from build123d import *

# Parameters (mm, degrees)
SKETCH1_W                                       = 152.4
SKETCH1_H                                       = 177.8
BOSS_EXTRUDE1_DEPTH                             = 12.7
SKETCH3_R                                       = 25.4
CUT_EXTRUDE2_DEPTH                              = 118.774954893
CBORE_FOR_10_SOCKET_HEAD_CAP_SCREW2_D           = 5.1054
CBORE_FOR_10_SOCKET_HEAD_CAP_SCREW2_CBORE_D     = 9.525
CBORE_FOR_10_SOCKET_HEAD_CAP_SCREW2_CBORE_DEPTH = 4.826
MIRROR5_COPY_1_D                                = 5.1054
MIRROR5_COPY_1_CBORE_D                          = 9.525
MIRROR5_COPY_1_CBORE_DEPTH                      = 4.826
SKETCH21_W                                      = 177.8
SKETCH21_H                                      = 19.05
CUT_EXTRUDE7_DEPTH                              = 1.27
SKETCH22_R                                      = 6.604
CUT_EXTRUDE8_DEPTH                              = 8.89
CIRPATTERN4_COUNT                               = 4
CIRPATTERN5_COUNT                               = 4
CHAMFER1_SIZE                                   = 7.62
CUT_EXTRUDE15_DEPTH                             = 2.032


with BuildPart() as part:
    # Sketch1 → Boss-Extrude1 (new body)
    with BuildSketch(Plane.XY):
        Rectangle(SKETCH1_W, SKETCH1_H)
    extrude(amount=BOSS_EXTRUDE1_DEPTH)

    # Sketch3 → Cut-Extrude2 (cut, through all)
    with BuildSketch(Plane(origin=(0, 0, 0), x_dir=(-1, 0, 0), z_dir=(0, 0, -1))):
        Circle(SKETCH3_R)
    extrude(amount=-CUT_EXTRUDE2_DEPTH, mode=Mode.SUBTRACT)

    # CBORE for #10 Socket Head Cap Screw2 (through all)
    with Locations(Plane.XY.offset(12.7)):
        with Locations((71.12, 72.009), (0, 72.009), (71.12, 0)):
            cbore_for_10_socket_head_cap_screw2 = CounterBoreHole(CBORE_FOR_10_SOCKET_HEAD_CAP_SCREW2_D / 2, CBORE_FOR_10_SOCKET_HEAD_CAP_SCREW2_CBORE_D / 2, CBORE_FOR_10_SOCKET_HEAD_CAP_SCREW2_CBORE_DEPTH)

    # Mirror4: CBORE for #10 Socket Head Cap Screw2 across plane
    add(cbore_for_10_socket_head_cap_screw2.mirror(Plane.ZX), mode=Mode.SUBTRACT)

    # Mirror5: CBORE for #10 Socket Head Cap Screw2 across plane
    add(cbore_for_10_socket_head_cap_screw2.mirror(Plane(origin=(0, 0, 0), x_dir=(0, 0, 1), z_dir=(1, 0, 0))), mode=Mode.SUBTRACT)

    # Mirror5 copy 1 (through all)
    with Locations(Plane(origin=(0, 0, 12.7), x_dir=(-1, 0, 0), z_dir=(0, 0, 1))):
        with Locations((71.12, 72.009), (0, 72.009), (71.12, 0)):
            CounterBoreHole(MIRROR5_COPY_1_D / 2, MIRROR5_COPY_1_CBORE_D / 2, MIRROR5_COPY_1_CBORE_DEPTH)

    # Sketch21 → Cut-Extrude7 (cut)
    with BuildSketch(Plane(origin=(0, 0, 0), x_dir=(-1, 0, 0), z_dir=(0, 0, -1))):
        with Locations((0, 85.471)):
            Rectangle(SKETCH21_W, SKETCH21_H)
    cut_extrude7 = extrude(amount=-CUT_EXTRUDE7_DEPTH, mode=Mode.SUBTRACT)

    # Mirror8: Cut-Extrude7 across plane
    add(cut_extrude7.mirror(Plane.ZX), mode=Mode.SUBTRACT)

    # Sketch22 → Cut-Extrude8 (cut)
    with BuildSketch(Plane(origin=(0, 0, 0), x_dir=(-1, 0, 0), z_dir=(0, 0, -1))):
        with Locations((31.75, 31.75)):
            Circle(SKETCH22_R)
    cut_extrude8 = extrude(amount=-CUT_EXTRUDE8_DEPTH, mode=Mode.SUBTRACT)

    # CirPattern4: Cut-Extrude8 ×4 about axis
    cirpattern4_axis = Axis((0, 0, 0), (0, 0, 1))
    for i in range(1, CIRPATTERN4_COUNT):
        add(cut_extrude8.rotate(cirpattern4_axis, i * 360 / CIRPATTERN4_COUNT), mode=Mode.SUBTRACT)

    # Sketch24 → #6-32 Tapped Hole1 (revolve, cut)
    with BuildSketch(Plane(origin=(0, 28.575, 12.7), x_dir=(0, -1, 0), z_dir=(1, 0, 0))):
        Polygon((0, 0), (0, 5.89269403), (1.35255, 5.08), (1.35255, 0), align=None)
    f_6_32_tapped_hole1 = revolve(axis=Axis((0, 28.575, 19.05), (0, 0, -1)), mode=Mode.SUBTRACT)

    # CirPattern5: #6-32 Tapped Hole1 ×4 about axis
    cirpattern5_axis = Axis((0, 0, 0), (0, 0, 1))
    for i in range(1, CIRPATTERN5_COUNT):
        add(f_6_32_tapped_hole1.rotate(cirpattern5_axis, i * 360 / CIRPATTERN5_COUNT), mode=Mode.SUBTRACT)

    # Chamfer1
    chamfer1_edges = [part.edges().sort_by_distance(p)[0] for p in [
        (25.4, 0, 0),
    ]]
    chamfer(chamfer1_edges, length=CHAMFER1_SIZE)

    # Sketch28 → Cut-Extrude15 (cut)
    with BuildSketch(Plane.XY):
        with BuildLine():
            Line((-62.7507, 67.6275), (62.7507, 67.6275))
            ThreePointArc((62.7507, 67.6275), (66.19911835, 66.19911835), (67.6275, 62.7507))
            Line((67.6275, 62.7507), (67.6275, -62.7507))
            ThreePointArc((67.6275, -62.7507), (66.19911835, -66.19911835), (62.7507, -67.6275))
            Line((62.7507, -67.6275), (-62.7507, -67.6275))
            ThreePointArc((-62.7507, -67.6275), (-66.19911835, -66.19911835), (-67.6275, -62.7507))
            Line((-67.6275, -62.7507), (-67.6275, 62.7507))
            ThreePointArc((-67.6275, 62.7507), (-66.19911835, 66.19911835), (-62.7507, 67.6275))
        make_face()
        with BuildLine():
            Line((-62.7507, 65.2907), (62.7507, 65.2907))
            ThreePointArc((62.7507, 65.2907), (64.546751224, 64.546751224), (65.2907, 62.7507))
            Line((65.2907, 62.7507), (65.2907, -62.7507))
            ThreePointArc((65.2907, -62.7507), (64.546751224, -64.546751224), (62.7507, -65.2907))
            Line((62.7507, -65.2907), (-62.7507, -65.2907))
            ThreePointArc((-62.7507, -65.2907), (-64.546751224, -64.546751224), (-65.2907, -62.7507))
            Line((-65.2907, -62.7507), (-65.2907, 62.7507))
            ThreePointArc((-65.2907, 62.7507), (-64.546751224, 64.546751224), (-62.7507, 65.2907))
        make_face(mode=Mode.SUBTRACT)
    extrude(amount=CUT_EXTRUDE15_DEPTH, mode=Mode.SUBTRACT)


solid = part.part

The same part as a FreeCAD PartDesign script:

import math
import FreeCAD as App
import Part
import Sketcher
from FreeCAD import Vector
Q = App.Units.Quantity


def edges_at(feature, points):
    """Names of the edges that pass closest to the given points."""
    edges = feature.Shape.Edges
    near = lambda p: min(range(len(edges)), key=lambda i: edges[i].distToShape(Part.Vertex(*p))[0])
    return sorted({f"Edge{near(p) + 1}" for p in points})

doc = App.newDocument("Part")
body = doc.addObject("PartDesign::Body", "Body")

# Sketch on XY plane
sketch1 = doc.addObject("Sketcher::SketchObject", "Sketch")
body.addObject(sketch1)
sketch1.AttachmentSupport = (doc.XY_Plane, [""])
sketch1.MapMode = "FlatFace"
sketch1.addGeometry([
    Part.LineSegment(Vector(-76, 89, 0), Vector(-76, -89, 0)),
    Part.LineSegment(Vector(-76, -89, 0), Vector(76, -89, 0)),
    Part.LineSegment(Vector(76, -89, 0), Vector(76, 89, 0)),
    Part.LineSegment(Vector(76, 89, 0), Vector(-76, 89, 0)),
], False)
sketch1.addConstraint([
    Sketcher.Constraint("Coincident", 0, 2, 1, 1),
    Sketcher.Constraint("Coincident", 1, 2, 2, 1),
    Sketcher.Constraint("Coincident", 2, 2, 3, 1),
    Sketcher.Constraint("Coincident", 3, 2, 0, 1),
    Sketcher.Constraint("Vertical", 0),
    Sketcher.Constraint("Horizontal", 1),
    Sketcher.Constraint("Vertical", 2),
    Sketcher.Constraint("Horizontal", 3),
    Sketcher.Constraint("Symmetric", 0, 2, 2, 2, -1, 1),
    Sketcher.Constraint("DistanceX", 1, 1, 1, 2, Q("6 in")),
    Sketcher.Constraint("DistanceY", 0, 2, 0, 1, Q("7 in")),
])
pad1 = doc.addObject("PartDesign::Pad", "Pad")
body.addObject(pad1)
pad1.Profile = sketch1
pad1.Length = Q("0.5 in")

# Sketch on XY plane
sketch2 = doc.addObject("Sketcher::SketchObject", "Sketch001")
body.addObject(sketch2)
sketch2.AttachmentSupport = (doc.XY_Plane, [""])
sketch2.MapMode = "FlatFace"
sketch2.addGeometry(Part.Circle(Vector(0, 0, 0), Vector(0, 0, 1), 25), False)
sketch2.addConstraint([
    Sketcher.Constraint("Coincident", 0, 3, -1, 1),
    Sketcher.Constraint("Diameter", 0, Q("2 in")),
])
pocket1 = doc.addObject("PartDesign::Pocket", "Pocket")
body.addObject(pocket1)
pocket1.Profile = sketch2
pocket1.Type = "ThroughAll"
pocket1.Reversed = True

# Sketch on XY plane
sketch3 = doc.addObject("Sketcher::SketchObject", "Sketch002")
body.addObject(sketch3)
sketch3.AttachmentSupport = (doc.XY_Plane, [""])
sketch3.MapMode = "FlatFace"
sketch3.AttachmentOffset = App.Placement(Vector(0, 0, 0.5 * 25.4), App.Rotation())
sketch3.addGeometry([
    Part.Circle(Vector(71.1, 72, 0), Vector(0, 0, 1), 2.6),
    Part.Circle(Vector(0, 72, 0), Vector(0, 0, 1), 2.6),
    Part.Circle(Vector(71.1, 0, 0), Vector(0, 0, 1), 2.6),
], False)
sketch3.addConstraint([
    Sketcher.Constraint("Equal", 0, 1),
    Sketcher.Constraint("Equal", 1, 2),
    Sketcher.Constraint("PointOnObject", 1, 3, -2),
    Sketcher.Constraint("PointOnObject", 2, 3, -1),
    Sketcher.Constraint("Horizontal", 0, 3, 1, 3),
    Sketcher.Constraint("Vertical", 0, 3, 2, 3),
    Sketcher.Constraint("Diameter", 0, Q("0.201 in")),
    Sketcher.Constraint("DistanceX", -1, 1, 0, 3, Q("2.8 in")),
    Sketcher.Constraint("DistanceY", -1, 1, 0, 3, Q("2.835 in")),
])
doc.recompute()
hole = doc.addObject("PartDesign::Hole", "Hole")
body.addObject(hole)
hole.Profile = sketch3
hole.ThreadType = "None"
hole.Diameter = Q("0.201 in")
hole.DepthType = "ThroughAll"
hole.HoleCutType = "Counterbore"
hole.HoleCutDiameter = Q("0.375 in")
hole.HoleCutDepth = Q("0.19 in")
doc.recompute()

mirrored = doc.addObject("PartDesign::Mirrored", "Mirrored")
body.addObject(mirrored)
mirrored.Originals = [hole]
mirrored.MirrorPlane = (doc.XZ_Plane, [""])
body.Tip = mirrored
doc.recompute()

mirrored2 = doc.addObject("PartDesign::Mirrored", "Mirrored001")
body.addObject(mirrored2)
mirrored2.Originals = [hole]
mirrored2.MirrorPlane = (doc.YZ_Plane, [""])
body.Tip = mirrored2

# Sketch on XY plane
sketch4 = doc.addObject("Sketcher::SketchObject", "Sketch003")
body.addObject(sketch4)
sketch4.AttachmentSupport = (doc.XY_Plane, [""])
sketch4.MapMode = "FlatFace"
sketch4.AttachmentOffset = App.Placement(Vector(0, 0, 0.5 * 25.4), App.Rotation())
sketch4.addGeometry([
    Part.Circle(Vector(-71.1, -72, 0), Vector(0, 0, 1), 2.6),
    Part.Circle(Vector(0, -72, 0), Vector(0, 0, 1), 2.6),
    Part.Circle(Vector(-71.1, 0, 0), Vector(0, 0, 1), 2.6),
], False)
sketch4.addConstraint([
    Sketcher.Constraint("Equal", 0, 1),
    Sketcher.Constraint("Equal", 1, 2),
    Sketcher.Constraint("PointOnObject", 1, 3, -2),
    Sketcher.Constraint("PointOnObject", 2, 3, -1),
    Sketcher.Constraint("Horizontal", 0, 3, 1, 3),
    Sketcher.Constraint("Vertical", 0, 3, 2, 3),
    Sketcher.Constraint("Diameter", 0, Q("0.201 in")),
    Sketcher.Constraint("DistanceX", 0, 3, -1, 1, Q("2.8 in")),
    Sketcher.Constraint("DistanceY", 0, 3, -1, 1, Q("2.835 in")),
])
doc.recompute()
hole2 = doc.addObject("PartDesign::Hole", "Hole001")
body.addObject(hole2)
hole2.Profile = sketch4
hole2.ThreadType = "None"
hole2.Diameter = Q("0.201 in")
hole2.DepthType = "ThroughAll"
hole2.HoleCutType = "Counterbore"
hole2.HoleCutDiameter = Q("0.375 in")
hole2.HoleCutDepth = Q("0.19 in")

# Sketch on XY plane
sketch5 = doc.addObject("Sketcher::SketchObject", "Sketch004")
body.addObject(sketch5)
sketch5.AttachmentSupport = (doc.XY_Plane, [""])
sketch5.MapMode = "FlatFace"
sketch5.addGeometry([
    Part.LineSegment(Vector(89, 95, 0), Vector(89, 76, 0)),
    Part.LineSegment(Vector(89, 76, 0), Vector(-89, 76, 0)),
    Part.LineSegment(Vector(-89, 76, 0), Vector(-89, 95, 0)),
    Part.LineSegment(Vector(-89, 95, 0), Vector(89, 95, 0)),
], False)
sketch5.addConstraint([
    Sketcher.Constraint("Coincident", 0, 2, 1, 1),
    Sketcher.Constraint("Coincident", 1, 2, 2, 1),
    Sketcher.Constraint("Coincident", 2, 2, 3, 1),
    Sketcher.Constraint("Coincident", 3, 2, 0, 1),
    Sketcher.Constraint("Vertical", 0),
    Sketcher.Constraint("Horizontal", 1),
    Sketcher.Constraint("Vertical", 2),
    Sketcher.Constraint("Horizontal", 3),
    Sketcher.Constraint("DistanceX", 1, 2, 1, 1, Q("7 in")),
    Sketcher.Constraint("DistanceY", 0, 2, 0, 1, Q("0.75 in")),
    Sketcher.Constraint("DistanceX", -1, 1, 0, 2, Q("3.5 in")),
    Sketcher.Constraint("DistanceY", -1, 1, 0, 2, Q("2.99 in")),
])
pocket2 = doc.addObject("PartDesign::Pocket", "Pocket001")
body.addObject(pocket2)
pocket2.Profile = sketch5
pocket2.Length = Q("0.05 in")
pocket2.Reversed = True
doc.recompute()

mirrored3 = doc.addObject("PartDesign::Mirrored", "Mirrored002")
body.addObject(mirrored3)
mirrored3.Originals = [pocket2]
mirrored3.MirrorPlane = (doc.XZ_Plane, [""])
body.Tip = mirrored3

# Sketch on XY plane
sketch6 = doc.addObject("Sketcher::SketchObject", "Sketch005")
body.addObject(sketch6)
sketch6.AttachmentSupport = (doc.XY_Plane, [""])
sketch6.MapMode = "FlatFace"
sketch6.addGeometry(Part.Circle(Vector(-32, 32, 0), Vector(0, 0, 1), 7), False)
sketch6.addConstraint([
    Sketcher.Constraint("Diameter", 0, Q("0.52 in")),
    Sketcher.Constraint("DistanceX", 0, 3, -1, 1, Q("1.25 in")),
    Sketcher.Constraint("DistanceY", -1, 1, 0, 3, Q("1.25 in")),
])
pocket3 = doc.addObject("PartDesign::Pocket", "Pocket002")
body.addObject(pocket3)
pocket3.Profile = sketch6
pocket3.Length = Q("0.35 in")
pocket3.Reversed = True
doc.recompute()

polarpattern = doc.addObject("PartDesign::PolarPattern", "PolarPattern")
body.addObject(polarpattern)
polarpattern.Originals = [pocket3]
polarpattern.Axis = (doc.Z_Axis, [""])
polarpattern.Angle = 360
polarpattern.Occurrences = 4
body.Tip = polarpattern

# Sketch on YZ plane
sketch7 = doc.addObject("Sketcher::SketchObject", "Sketch006")
body.addObject(sketch7)
sketch7.AttachmentSupport = (doc.YZ_Plane, [""])
sketch7.MapMode = "FlatFace"
sketch7.addGeometry([
    Part.LineSegment(Vector(28.6, 6.8, 0), Vector(28.6, 12.7, 0)),
    Part.LineSegment(Vector(28.6, 12.7, 0), Vector(27.2, 12.7, 0)),
    Part.LineSegment(Vector(27.2, 12.7, 0), Vector(27.2, 7.6, 0)),
    Part.LineSegment(Vector(27.2, 7.6, 0), Vector(28.6, 6.8, 0)),
], False)
sketch7.addGeometry(Part.LineSegment(Vector(28.6, 12.7, 0), Vector(28.6, 6.8, 0)), True)  # axis
sketch7.addConstraint([
    Sketcher.Constraint("Coincident", 0, 2, 1, 1),
    Sketcher.Constraint("Coincident", 1, 2, 2, 1),
    Sketcher.Constraint("Coincident", 2, 2, 3, 1),
    Sketcher.Constraint("Coincident", 3, 2, 0, 1),
    Sketcher.Constraint("Vertical", 0),
    Sketcher.Constraint("Horizontal", 1),
    Sketcher.Constraint("Vertical", 2),
    Sketcher.Constraint("Vertical", 4),
    Sketcher.Constraint("Coincident", 4, 1, 0, 2),
    Sketcher.Constraint("Equal", 0, 4),
    Sketcher.Constraint("DistanceY", 2, 2, 2, 1, Q("0.2 in")),
    Sketcher.Constraint("Angle", 3, Q("-31 deg")),
    Sketcher.Constraint("DistanceY", -1, 1, 0, 2, Q("0.5 in")),
    Sketcher.Constraint("DistanceX", -1, 1, 0, 2, Q("1.125 in")),
    Sketcher.Constraint("DistanceX", 1, 2, 1, 1, 1.35255),
])
groove = doc.addObject("PartDesign::Groove", "Groove")
body.addObject(groove)
groove.Profile = sketch7
groove.ReferenceAxis = (sketch7, ["Axis0"])
groove.Angle = 360
doc.recompute()

polarpattern2 = doc.addObject("PartDesign::PolarPattern", "PolarPattern001")
body.addObject(polarpattern2)
polarpattern2.Originals = [groove]
polarpattern2.Axis = (doc.Z_Axis, [""])
polarpattern2.Angle = 360
polarpattern2.Occurrences = 4
body.Tip = polarpattern2
doc.recompute()

chamfer = doc.addObject("PartDesign::Chamfer", "Chamfer")
body.addObject(chamfer)
chamfer.Base = (polarpattern2, edges_at(polarpattern2, [(25.4, 0, 0)]))
chamfer.Size = Q("0.3 in")

# Sketch on XY plane
sketch8 = doc.addObject("Sketcher::SketchObject", "Sketch007")
body.addObject(sketch8)
sketch8.AttachmentSupport = (doc.XY_Plane, [""])
sketch8.MapMode = "FlatFace"
sketch8.addGeometry([
    Part.LineSegment(Vector(62.8, 67.6, 0), Vector(-62.8, 67.6, 0)),  # 0
    Part.ArcOfCircle(Part.Circle(Vector(-62.8, 62.8, 0), Vector(0, 0, 1), 4.9), math.radians(90), math.radians(180)),  # 1
    Part.LineSegment(Vector(-67.6, 62.8, 0), Vector(-67.6, -62.8, 0)),  # 2
    Part.ArcOfCircle(Part.Circle(Vector(-62.8, -62.8, 0), Vector(0, 0, 1), 4.9), math.radians(-180), math.radians(-90)),  # 3
    Part.LineSegment(Vector(-62.8, -67.6, 0), Vector(62.8, -67.6, 0)),  # 4
    Part.ArcOfCircle(Part.Circle(Vector(62.8, -62.8, 0), Vector(0, 0, 1), 4.9), math.radians(-90), math.radians(0)),  # 5
    Part.LineSegment(Vector(67.6, -62.8, 0), Vector(67.6, 62.8, 0)),  # 6
    Part.ArcOfCircle(Part.Circle(Vector(62.8, 62.8, 0), Vector(0, 0, 1), 4.9), math.radians(0), math.radians(90)),  # 7
    Part.LineSegment(Vector(-62.8, 65.3, 0), Vector(62.8, 65.3, 0)),  # 8
    Part.ArcOfCircle(Part.Circle(Vector(62.8, 62.8, 0), Vector(0, 0, 1), 2.5), math.radians(0), math.radians(90)),  # 9
    Part.LineSegment(Vector(65.3, 62.8, 0), Vector(65.3, -62.8, 0)),  # 10
    Part.ArcOfCircle(Part.Circle(Vector(62.8, -62.8, 0), Vector(0, 0, 1), 2.5), math.radians(-90), math.radians(0)),  # 11
    Part.LineSegment(Vector(62.8, -65.3, 0), Vector(-62.8, -65.3, 0)),  # 12
    Part.ArcOfCircle(Part.Circle(Vector(-62.8, -62.8, 0), Vector(0, 0, 1), 2.5), math.radians(-180), math.radians(-90)),  # 13
    Part.LineSegment(Vector(-65.3, -62.8, 0), Vector(-65.3, 62.8, 0)),  # 14
    Part.ArcOfCircle(Part.Circle(Vector(-62.8, 62.8, 0), Vector(0, 0, 1), 2.5), math.radians(90), math.radians(180)),  # 15
], False)
sketch8.addConstraint([
    Sketcher.Constraint("Tangent", 0, 2, 1, 1),
    Sketcher.Constraint("Tangent", 1, 2, 2, 1),
    Sketcher.Constraint("Tangent", 2, 2, 3, 1),
    Sketcher.Constraint("Tangent", 3, 2, 4, 1),
    Sketcher.Constraint("Tangent", 4, 2, 5, 1),
    Sketcher.Constraint("Tangent", 5, 2, 6, 1),
    Sketcher.Constraint("Tangent", 6, 2, 7, 1),
    Sketcher.Constraint("Tangent", 7, 2, 0, 1),
    Sketcher.Constraint("Tangent", 8, 2, 9, 2),
    Sketcher.Constraint("Tangent", 9, 1, 10, 1),
    Sketcher.Constraint("Tangent", 10, 2, 11, 2),
    Sketcher.Constraint("Tangent", 11, 1, 12, 1),
    Sketcher.Constraint("Tangent", 12, 2, 13, 2),
    Sketcher.Constraint("Tangent", 13, 1, 14, 1),
    Sketcher.Constraint("Tangent", 14, 2, 15, 2),
    Sketcher.Constraint("Tangent", 15, 1, 8, 1),
    Sketcher.Constraint("Horizontal", 0),
    Sketcher.Constraint("Vertical", 2),
    Sketcher.Constraint("Horizontal", 4),
    Sketcher.Constraint("Vertical", 6),
    Sketcher.Constraint("Horizontal", 8),
    Sketcher.Constraint("Vertical", 10),
    Sketcher.Constraint("Horizontal", 12),
    Sketcher.Constraint("Vertical", 14),
    Sketcher.Constraint("Coincident", 9, 3, 7, 3),
    Sketcher.Constraint("Coincident", 11, 3, 5, 3),
    Sketcher.Constraint("Coincident", 13, 3, 3, 3),
    Sketcher.Constraint("Equal", 1, 3),
    Sketcher.Constraint("Equal", 3, 5),
    Sketcher.Constraint("Equal", 5, 7),
    Sketcher.Constraint("Equal", 13, 15),
    Sketcher.Constraint("Symmetric", 1, 3, 5, 3, -1, 1),
    Sketcher.Constraint("Equal", 12, 2),
    Sketcher.Constraint("Radius", 9, Q("0.1 in")),
    Sketcher.Constraint("Radius", 1, Q("0.192 in")),
    Sketcher.Constraint("DistanceX", 0, 2, 0, 1, Q("4.941 in")),
])
pocket4 = doc.addObject("PartDesign::Pocket", "Pocket003")
body.addObject(pocket4)
pocket4.Profile = sketch8
pocket4.Length = Q("0.08 in")
pocket4.Reversed = True

doc.recompute()
